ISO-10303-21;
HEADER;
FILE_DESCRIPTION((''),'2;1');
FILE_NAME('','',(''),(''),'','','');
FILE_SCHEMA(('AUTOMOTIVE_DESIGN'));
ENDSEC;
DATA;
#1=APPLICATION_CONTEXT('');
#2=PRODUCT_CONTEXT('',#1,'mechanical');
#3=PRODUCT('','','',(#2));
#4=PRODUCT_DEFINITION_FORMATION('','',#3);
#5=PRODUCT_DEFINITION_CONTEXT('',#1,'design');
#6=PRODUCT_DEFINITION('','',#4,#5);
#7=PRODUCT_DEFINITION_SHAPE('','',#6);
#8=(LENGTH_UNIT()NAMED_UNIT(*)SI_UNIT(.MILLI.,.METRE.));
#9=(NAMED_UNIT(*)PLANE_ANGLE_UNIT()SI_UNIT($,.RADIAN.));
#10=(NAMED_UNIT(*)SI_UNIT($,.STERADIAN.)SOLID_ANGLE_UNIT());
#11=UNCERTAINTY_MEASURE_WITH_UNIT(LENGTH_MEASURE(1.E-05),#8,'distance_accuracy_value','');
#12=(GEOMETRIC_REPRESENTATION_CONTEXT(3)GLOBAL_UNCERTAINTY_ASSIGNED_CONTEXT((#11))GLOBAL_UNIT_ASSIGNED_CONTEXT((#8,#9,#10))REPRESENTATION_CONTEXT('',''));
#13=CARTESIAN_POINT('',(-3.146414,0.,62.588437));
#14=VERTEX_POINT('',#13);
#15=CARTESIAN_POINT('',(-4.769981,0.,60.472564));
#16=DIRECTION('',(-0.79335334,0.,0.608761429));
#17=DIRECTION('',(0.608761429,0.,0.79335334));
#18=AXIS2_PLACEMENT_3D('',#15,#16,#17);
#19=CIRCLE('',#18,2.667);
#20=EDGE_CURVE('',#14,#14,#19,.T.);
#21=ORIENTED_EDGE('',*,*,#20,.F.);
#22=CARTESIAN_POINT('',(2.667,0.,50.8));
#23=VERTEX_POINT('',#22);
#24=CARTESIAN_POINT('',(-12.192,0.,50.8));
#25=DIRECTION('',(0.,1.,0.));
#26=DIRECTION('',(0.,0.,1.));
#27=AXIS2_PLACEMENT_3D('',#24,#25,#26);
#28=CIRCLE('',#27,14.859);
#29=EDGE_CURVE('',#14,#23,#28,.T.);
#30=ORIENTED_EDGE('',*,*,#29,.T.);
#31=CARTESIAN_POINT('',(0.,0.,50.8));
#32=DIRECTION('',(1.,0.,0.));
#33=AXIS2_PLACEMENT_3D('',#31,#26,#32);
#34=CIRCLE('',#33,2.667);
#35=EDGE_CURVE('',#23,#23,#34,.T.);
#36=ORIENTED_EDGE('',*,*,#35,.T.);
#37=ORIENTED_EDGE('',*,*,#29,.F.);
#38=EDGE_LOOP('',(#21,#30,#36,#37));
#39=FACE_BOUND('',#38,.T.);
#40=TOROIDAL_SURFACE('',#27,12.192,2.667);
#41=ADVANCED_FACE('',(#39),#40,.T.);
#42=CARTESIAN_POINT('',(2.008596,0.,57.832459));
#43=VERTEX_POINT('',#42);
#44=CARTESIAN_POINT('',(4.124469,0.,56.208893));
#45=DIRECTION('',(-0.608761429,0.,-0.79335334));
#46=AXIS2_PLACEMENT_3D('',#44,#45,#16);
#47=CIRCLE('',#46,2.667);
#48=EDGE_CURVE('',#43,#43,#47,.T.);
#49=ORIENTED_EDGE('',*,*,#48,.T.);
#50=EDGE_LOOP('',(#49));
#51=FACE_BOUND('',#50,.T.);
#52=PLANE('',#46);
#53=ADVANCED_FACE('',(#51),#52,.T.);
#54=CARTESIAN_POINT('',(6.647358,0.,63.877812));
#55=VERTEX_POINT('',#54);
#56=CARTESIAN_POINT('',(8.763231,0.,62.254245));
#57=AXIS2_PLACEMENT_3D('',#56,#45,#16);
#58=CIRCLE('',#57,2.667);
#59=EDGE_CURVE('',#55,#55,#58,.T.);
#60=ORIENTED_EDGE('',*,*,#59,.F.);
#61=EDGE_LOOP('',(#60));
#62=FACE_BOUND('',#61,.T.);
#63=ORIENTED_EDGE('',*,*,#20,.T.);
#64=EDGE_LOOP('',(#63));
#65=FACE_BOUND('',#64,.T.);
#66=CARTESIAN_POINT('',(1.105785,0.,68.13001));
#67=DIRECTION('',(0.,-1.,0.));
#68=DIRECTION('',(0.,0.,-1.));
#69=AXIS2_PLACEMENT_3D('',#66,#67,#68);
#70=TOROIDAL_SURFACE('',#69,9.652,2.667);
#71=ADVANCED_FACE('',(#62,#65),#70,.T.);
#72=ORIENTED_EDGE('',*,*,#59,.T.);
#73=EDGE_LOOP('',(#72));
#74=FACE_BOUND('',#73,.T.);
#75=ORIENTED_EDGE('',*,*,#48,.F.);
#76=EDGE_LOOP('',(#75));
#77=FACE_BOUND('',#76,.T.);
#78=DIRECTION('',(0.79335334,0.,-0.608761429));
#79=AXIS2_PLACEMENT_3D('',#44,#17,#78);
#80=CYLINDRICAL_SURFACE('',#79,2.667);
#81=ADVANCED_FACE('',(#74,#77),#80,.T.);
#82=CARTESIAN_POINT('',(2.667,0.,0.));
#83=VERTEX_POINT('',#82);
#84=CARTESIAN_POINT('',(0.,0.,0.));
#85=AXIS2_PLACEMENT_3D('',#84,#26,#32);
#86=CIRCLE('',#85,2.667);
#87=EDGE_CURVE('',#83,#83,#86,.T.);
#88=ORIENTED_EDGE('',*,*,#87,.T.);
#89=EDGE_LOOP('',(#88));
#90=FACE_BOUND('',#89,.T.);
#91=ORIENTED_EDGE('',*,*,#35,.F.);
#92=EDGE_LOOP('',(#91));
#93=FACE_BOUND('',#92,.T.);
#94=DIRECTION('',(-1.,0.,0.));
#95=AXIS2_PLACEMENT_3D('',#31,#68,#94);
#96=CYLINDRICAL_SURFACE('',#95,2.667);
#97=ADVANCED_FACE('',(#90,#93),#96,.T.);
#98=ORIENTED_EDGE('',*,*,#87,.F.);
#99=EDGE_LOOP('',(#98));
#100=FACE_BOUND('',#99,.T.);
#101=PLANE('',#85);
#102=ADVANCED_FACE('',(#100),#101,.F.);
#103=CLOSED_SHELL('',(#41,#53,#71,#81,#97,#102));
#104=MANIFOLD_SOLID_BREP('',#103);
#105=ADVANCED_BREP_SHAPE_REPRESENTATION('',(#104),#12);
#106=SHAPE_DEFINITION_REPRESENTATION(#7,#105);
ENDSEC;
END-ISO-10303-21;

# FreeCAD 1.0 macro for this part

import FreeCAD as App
import Part
import Sketcher
Q = App.Units.Quantity

doc = App.newDocument("Part")
body = doc.addObject("PartDesign::Body", "Body")

# Sketch on XY plane
sketch1 = body.newObject("Sketcher::SketchObject", "Sketch")
sketch1.AttachmentSupport = (doc.getObject("XY_Plane"), [""])
sketch1.MapMode = "FlatFace"
sketch1.addGeometry(Part.Circle(App.Vector(0, 0, 0), App.Vector(0, 0, 1), 2.667), False)
sketch1.addConstraint([
    Sketcher.Constraint("Coincident", 0, 3, -1, 1),
    Sketcher.Constraint("Diameter", 0, Q("0.21 in")),
])
pad1 = body.newObject("PartDesign::Pad", "Pad")
pad1.Profile = sketch1
pad1.Length = Q("2 in")

# Sketch on XY plane
sketch2 = body.newObject("Sketcher::SketchObject", "Sketch001")
sketch2.AttachmentSupport = (doc.getObject("XY_Plane"), [""])
sketch2.MapMode = "FlatFace"
sketch2.AttachmentOffset = App.Placement(App.Vector(0, 0, 2 * 25.4), App.Rotation())
sketch2.addGeometry(Part.Circle(App.Vector(0, 0, 0), App.Vector(0, 0, 1), 2.667), False)
sketch2.addGeometry(Part.LineSegment(App.Vector(-12.192, 0, 0), App.Vector(-12.192, -10, 0)), True)  # axis
sketch2.addConstraint([
    Sketcher.Constraint("Vertical", 1),
    Sketcher.Constraint("Coincident", 0, 3, -1, 1),
    Sketcher.Constraint("PointOnObject", 1, 1, -1),
    Sketcher.Constraint("Diameter", 0, Q("0.21 in")),
    Sketcher.Constraint("DistanceX", 1, 1, -1, 1, Q("0.48 in")),
    Sketcher.Constraint("DistanceY", 1, 2, 1, 1, 10.0),
])
revolution = body.newObject("PartDesign::Revolution", "Revolution")
revolution.Profile = sketch2
revolution.ReferenceAxis = (sketch2, ["Axis0"])
revolution.Angle = 52.5

# Sketch on an angled plane
sketch3 = body.newObject("Sketcher::SketchObject", "Sketch002")
sketch3.Placement = App.Placement(App.Vector(-32.208277, 0, 24.71428), App.Rotation(App.Vector(0.608761429, 0, 0.79335334), App.Vector(0, 1, 0), App.Vector(-0.79335334, 0, 0.608761429), "ZXY"))
sketch3.addGeometry(Part.Circle(App.Vector(45.07233, 0, 0), App.Vector(0, 0, 1), 2.667), False)
sketch3.addGeometry(Part.LineSegment(App.Vector(54.72433, 0, 0), App.Vector(54.72433, 10, 0)), True)  # axis
sketch3.addConstraint([
    Sketcher.Constraint("Vertical", 1),
    Sketcher.Constraint("PointOnObject", 0, 3, -1),
    Sketcher.Constraint("PointOnObject", 1, 1, -1),
    Sketcher.Constraint("Diameter", 0, Q("0.21 in")),
    Sketcher.Constraint("DistanceX", 0, 3, 1, 1, Q("0.38 in")),
    Sketcher.Constraint("DistanceY", 1, 1, 1, 2, 10.0),
    Sketcher.Constraint("DistanceX", -1, 1, 0, 3, 45.07233),
])
revolution2 = body.newObject("PartDesign::Revolution", "Revolution001")
revolution2.Profile = sketch3
revolution2.ReferenceAxis = (sketch3, ["Axis0"])
revolution2.Angle = 270

# Sketch on an angled plane
sketch4 = body.newObject("Sketcher::SketchObject", "Sketch003")
sketch4.Placement = App.Placement(App.Vector(33.314062, 0, 43.41573), App.Rotation(App.Vector(-0.79335334, 0, 0.608761429), App.Vector(0, 1, 0), App.Vector(-0.608761429, 0, -0.79335334), "ZXY"))
sketch4.addGeometry(Part.Circle(App.Vector(30.945645, 0, 0), App.Vector(0, 0, 1), 2.667), False)
sketch4.addConstraint([
    Sketcher.Constraint("PointOnObject", 0, 3, -1),
    Sketcher.Constraint("Diameter", 0, Q("0.21 in")),
    Sketcher.Constraint("DistanceX", -1, 1, 0, 3, 30.945645),
])
pad2 = body.newObject("PartDesign::Pad", "Pad001")
pad2.Profile = sketch4
pad2.Length = Q("0.3 in")

doc.recompute()
